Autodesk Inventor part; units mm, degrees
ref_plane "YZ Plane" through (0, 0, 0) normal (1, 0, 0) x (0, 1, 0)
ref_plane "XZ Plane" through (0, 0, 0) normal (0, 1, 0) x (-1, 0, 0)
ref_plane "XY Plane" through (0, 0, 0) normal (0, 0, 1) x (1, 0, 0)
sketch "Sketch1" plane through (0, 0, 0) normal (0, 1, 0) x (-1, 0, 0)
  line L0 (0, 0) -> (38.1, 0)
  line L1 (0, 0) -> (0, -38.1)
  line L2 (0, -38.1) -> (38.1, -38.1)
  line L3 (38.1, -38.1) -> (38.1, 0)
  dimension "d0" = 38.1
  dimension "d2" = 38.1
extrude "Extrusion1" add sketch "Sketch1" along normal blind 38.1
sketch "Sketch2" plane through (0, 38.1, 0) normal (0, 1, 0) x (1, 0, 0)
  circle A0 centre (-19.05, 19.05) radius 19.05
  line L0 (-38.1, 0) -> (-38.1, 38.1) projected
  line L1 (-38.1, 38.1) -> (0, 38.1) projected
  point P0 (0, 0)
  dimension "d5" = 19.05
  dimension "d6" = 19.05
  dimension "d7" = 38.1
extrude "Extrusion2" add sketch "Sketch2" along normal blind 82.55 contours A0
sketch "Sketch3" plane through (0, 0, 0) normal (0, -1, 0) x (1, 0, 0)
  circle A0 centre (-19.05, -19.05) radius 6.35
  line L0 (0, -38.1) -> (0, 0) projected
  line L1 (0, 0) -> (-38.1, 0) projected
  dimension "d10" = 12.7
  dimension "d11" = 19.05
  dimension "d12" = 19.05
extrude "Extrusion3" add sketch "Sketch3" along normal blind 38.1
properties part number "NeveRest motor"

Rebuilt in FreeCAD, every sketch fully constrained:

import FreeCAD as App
import Part
import Sketcher
from FreeCAD import Vector
Q = App.Units.Quantity

doc = App.newDocument("Part")
body = doc.addObject("PartDesign::Body", "Body")

sketch1 = doc.addObject("Sketcher::SketchObject", "Sketch")
body.addObject(sketch1)
sketch1.AttachmentSupport = (doc.XZ_Plane, [""])
sketch1.MapMode = "FlatFace"
sketch1.addGeometry(Part.LineSegment(Vector(-38, 0, 0), Vector(0, 0, 0)), False)
sketch1.addGeometry(Part.LineSegment(Vector(0, 0, 0), Vector(0, -38, 0)), False)
sketch1.addGeometry(Part.LineSegment(Vector(0, -38, 0), Vector(-38, -38, 0)), False)
sketch1.addGeometry(Part.LineSegment(Vector(-38, -38, 0), Vector(-38, 0, 0)), False)
sketch1.addConstraint(Sketcher.Constraint("Coincident", 0, 2, 1, 1))
sketch1.addConstraint(Sketcher.Constraint("Coincident", 1, 2, 2, 1))
sketch1.addConstraint(Sketcher.Constraint("Coincident", 2, 2, 3, 1))
sketch1.addConstraint(Sketcher.Constraint("Coincident", 3, 2, 0, 1))
sketch1.addConstraint(Sketcher.Constraint("Horizontal", 0))
sketch1.addConstraint(Sketcher.Constraint("Vertical", 1))
sketch1.addConstraint(Sketcher.Constraint("Horizontal", 2))
sketch1.addConstraint(Sketcher.Constraint("Vertical", 3))
sketch1.addConstraint(Sketcher.Constraint("Coincident", 0, 2, -1, 1))
sketch1.addConstraint(Sketcher.Constraint("Equal", 2, 1))
sketch1.addConstraint(Sketcher.Constraint("DistanceX", 0, 1, 0, 2, Q("1.5 in")))
pad1 = doc.addObject("PartDesign::Pad", "Pad")
body.addObject(pad1)
pad1.Profile = sketch1
pad1.Length = Q("1.5 in")
pad1.Reversed = True

sketch2 = doc.addObject("Sketcher::SketchObject", "Sketch001")
body.addObject(sketch2)
sketch2.AttachmentSupport = (doc.XZ_Plane, [""])
sketch2.MapMode = "FlatFace"
sketch2.AttachmentOffset = App.Placement(Vector(0, 0, -1.5 * 25.4), App.Rotation())
sketch2.addGeometry(Part.Circle(Vector(-19, -19, 0), Vector(0, 0, 1), 19), False)
sketch2.addConstraint(Sketcher.Constraint("Diameter", 0, Q("1.5 in")))
sketch2.addConstraint(Sketcher.Constraint("DistanceX", 0, 3, -1, 1, Q("0.75 in")))
sketch2.addConstraint(Sketcher.Constraint("DistanceY", 0, 3, -1, 1, Q("0.75 in")))
pad2 = doc.addObject("PartDesign::Pad", "Pad001")
body.addObject(pad2)
pad2.Profile = sketch2
pad2.Length = Q("3.25 in")
pad2.Reversed = True

sketch3 = doc.addObject("Sketcher::SketchObject", "Sketch002")
body.addObject(sketch3)
sketch3.AttachmentSupport = (doc.XZ_Plane, [""])
sketch3.MapMode = "FlatFace"
sketch3.addGeometry(Part.Circle(Vector(-19, -19, 0), Vector(0, 0, 1), 6), False)
sketch3.addConstraint(Sketcher.Constraint("Diameter", 0, Q("0.5 in")))
sketch3.addConstraint(Sketcher.Constraint("DistanceX", 0, 3, -1, 1, Q("0.75 in")))
sketch3.addConstraint(Sketcher.Constraint("DistanceY", 0, 3, -1, 1, Q("0.75 in")))
pad3 = doc.addObject("PartDesign::Pad", "Pad002")
body.addObject(pad3)
pad3.Profile = sketch3
pad3.Length = Q("1.5 in")

doc.recompute()
